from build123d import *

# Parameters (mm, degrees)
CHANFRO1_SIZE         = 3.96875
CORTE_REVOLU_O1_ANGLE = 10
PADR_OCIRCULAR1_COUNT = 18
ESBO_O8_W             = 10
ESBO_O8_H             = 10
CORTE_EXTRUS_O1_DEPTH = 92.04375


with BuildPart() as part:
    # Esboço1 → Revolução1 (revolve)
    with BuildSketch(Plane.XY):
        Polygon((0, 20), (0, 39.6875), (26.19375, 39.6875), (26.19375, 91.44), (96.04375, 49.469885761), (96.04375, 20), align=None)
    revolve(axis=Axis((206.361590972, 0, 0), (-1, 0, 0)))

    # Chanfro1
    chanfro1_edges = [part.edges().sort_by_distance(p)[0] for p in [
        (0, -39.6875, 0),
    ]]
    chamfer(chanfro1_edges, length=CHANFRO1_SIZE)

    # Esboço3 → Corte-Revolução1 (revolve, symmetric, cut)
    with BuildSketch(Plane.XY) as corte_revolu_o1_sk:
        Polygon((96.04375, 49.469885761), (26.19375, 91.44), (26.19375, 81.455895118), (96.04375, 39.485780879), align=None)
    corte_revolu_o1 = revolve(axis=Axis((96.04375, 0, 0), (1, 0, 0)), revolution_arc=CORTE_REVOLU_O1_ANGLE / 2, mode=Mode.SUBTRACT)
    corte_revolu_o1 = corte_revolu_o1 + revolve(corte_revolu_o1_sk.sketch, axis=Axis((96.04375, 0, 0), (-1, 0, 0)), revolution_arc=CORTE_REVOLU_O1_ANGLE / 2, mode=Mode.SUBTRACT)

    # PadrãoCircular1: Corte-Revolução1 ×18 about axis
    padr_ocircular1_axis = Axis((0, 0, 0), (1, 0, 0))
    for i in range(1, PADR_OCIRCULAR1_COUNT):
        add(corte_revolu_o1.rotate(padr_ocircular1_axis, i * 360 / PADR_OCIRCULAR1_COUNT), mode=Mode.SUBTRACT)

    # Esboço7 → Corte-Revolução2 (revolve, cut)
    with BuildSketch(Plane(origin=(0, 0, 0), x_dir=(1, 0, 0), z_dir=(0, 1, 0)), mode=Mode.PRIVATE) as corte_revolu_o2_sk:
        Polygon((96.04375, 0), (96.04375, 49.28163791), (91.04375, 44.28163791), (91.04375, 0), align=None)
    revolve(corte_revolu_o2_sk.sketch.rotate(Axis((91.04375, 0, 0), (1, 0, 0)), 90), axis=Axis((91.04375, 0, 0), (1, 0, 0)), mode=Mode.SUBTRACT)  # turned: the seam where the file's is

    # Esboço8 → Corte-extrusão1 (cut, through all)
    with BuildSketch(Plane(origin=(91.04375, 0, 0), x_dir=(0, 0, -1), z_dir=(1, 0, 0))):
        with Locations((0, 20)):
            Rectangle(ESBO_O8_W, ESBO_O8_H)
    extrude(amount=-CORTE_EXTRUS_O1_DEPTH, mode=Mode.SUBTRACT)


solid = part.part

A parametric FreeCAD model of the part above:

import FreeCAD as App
import Part
import Sketcher
Q = App.Units.Quantity


def edges_at(feature, points):
    """Names of the edges that pass closest to the given points."""
    edges = feature.Shape.Edges
    near = lambda p: min(range(len(edges)), key=lambda i: edges[i].distToShape(Part.Vertex(*p))[0])
    return sorted({f"Edge{near(p) + 1}" for p in points})

doc = App.newDocument("Part")
body = doc.addObject("PartDesign::Body", "Body")

sketch1 = doc.addObject("Sketcher::SketchObject", "Sketch")
body.addObject(sketch1)
sketch1.AttachmentSupport = (doc.XY_Plane, [""])
sketch1.MapMode = "FlatFace"
sketch1.addGeometry(Part.LineSegment(App.Vector(0, 40, 0), App.Vector(0, 20, 0)), False)
sketch1.addGeometry(Part.LineSegment(App.Vector(0, 20, 0), App.Vector(96, 20, 0)), False)
sketch1.addGeometry(Part.LineSegment(App.Vector(96, 20, 0), App.Vector(96, 49, 0)), False)
sketch1.addGeometry(Part.LineSegment(App.Vector(96, 49, 0), App.Vector(26, 91, 0)), False)
sketch1.addGeometry(Part.LineSegment(App.Vector(26, 91, 0), App.Vector(26, 40, 0)), False)
sketch1.addGeometry(Part.LineSegment(App.Vector(26, 40, 0), App.Vector(0, 40, 0)), False)
sketch1.addConstraint(Sketcher.Constraint("Coincident", 0, 2, 1, 1))
sketch1.addConstraint(Sketcher.Constraint("Coincident", 1, 2, 2, 1))
sketch1.addConstraint(Sketcher.Constraint("Coincident", 2, 2, 3, 1))
sketch1.addConstraint(Sketcher.Constraint("Coincident", 3, 2, 4, 1))
sketch1.addConstraint(Sketcher.Constraint("Coincident", 4, 2, 5, 1))
sketch1.addConstraint(Sketcher.Constraint("Coincident", 5, 2, 0, 1))
sketch1.addConstraint(Sketcher.Constraint("Vertical", 0))
sketch1.addConstraint(Sketcher.Constraint("Horizontal", 1))
sketch1.addConstraint(Sketcher.Constraint("Vertical", 2))
sketch1.addConstraint(Sketcher.Constraint("Vertical", 4))
sketch1.addConstraint(Sketcher.Constraint("Horizontal", 5))
sketch1.addConstraint(Sketcher.Constraint("PointOnObject", 0, 2, -2))
sketch1.addConstraint(Sketcher.Constraint("Angle", 3, Q("149 deg")))
sketch1.addConstraint(Sketcher.Constraint("DistanceY", -1, 1, 3, 2, Q("3.6 in")))
sketch1.addConstraint(Sketcher.Constraint("DistanceX", 1, 1, 1, 2, Q("3.78125 in")))
sketch1.addConstraint(Sketcher.Constraint("DistanceX", 5, 2, 5, 1, Q("1.03125 in")))
sketch1.addConstraint(Sketcher.Constraint("DistanceY", 4, 2, 4, 1, Q("2.0375 in")))
sketch1.addConstraint(Sketcher.Constraint("DistanceY", 0, 2, 0, 1, 19.6875))
revolution = doc.addObject("PartDesign::Revolution", "Revolution")
body.addObject(revolution)
revolution.Profile = sketch1
revolution.ReferenceAxis = (sketch1, ["H_Axis"])
revolution.Angle = 360
doc.recompute()

chamfer = doc.addObject("PartDesign::Chamfer", "Chamfer")
body.addObject(chamfer)
chamfer.Base = (revolution, edges_at(revolution, [(0, -39.688, 0)]))
chamfer.Size = Q("0.15625 in")

sketch2 = doc.addObject("Sketcher::SketchObject", "Sketch001")
body.addObject(sketch2)
sketch2.AttachmentSupport = (doc.XY_Plane, [""])
sketch2.MapMode = "FlatFace"
sketch2.addGeometry(Part.LineSegment(App.Vector(96, 49, 0), App.Vector(26, 91, 0)), False)
sketch2.addGeometry(Part.LineSegment(App.Vector(26, 91, 0), App.Vector(26, 81, 0)), False)
sketch2.addGeometry(Part.LineSegment(App.Vector(26, 81, 0), App.Vector(96, 39, 0)), False)
sketch2.addGeometry(Part.LineSegment(App.Vector(96, 39, 0), App.Vector(96, 49, 0)), False)
sketch2.addConstraint(Sketcher.Constraint("Coincident", 0, 2, 1, 1))
sketch2.addConstraint(Sketcher.Constraint("Coincident", 1, 2, 2, 1))
sketch2.addConstraint(Sketcher.Constraint("Coincident", 2, 2, 3, 1))
sketch2.addConstraint(Sketcher.Constraint("Coincident", 3, 2, 0, 1))
sketch2.addConstraint(Sketcher.Constraint("Vertical", 1))
sketch2.addConstraint(Sketcher.Constraint("Vertical", 3))
sketch2.addConstraint(Sketcher.Constraint("Parallel", 0, 2))
sketch2.addConstraint(Sketcher.Constraint("Angle", 0, Q("149 deg")))
sketch2.addConstraint(Sketcher.Constraint("DistanceY", -1, 1, 0, 2, Q("3.6 in")))
sketch2.addConstraint(Sketcher.Constraint("DistanceX", 1, 2, 2, 2, Q("2.75 in")))
sketch2.addConstraint(Sketcher.Constraint("DistanceX", -1, 1, 0, 2, Q("1.03125 in")))
sketch2.addConstraint(Sketcher.Constraint("DistanceY", 1, 2, 1, 1, 9.984105))
groove = doc.addObject("PartDesign::Groove", "Groove")
body.addObject(groove)
groove.Profile = sketch2
groove.ReferenceAxis = (sketch2, ["H_Axis"])
groove.Angle = 5

sketch3 = doc.addObject("Sketcher::SketchObject", "Sketch002")
body.addObject(sketch3)
sketch3.AttachmentSupport = (doc.XY_Plane, [""])
sketch3.MapMode = "FlatFace"
sketch3.addGeometry(Part.LineSegment(App.Vector(96, 49, 0), App.Vector(26, 91, 0)), False)
sketch3.addGeometry(Part.LineSegment(App.Vector(26, 91, 0), App.Vector(26, 81, 0)), False)
sketch3.addGeometry(Part.LineSegment(App.Vector(26, 81, 0), App.Vector(96, 39, 0)), False)
sketch3.addGeometry(Part.LineSegment(App.Vector(96, 39, 0), App.Vector(96, 49, 0)), False)
sketch3.addConstraint(Sketcher.Constraint("Coincident", 0, 2, 1, 1))
sketch3.addConstraint(Sketcher.Constraint("Coincident", 1, 2, 2, 1))
sketch3.addConstraint(Sketcher.Constraint("Coincident", 2, 2, 3, 1))
sketch3.addConstraint(Sketcher.Constraint("Coincident", 3, 2, 0, 1))
sketch3.addConstraint(Sketcher.Constraint("Vertical", 1))
sketch3.addConstraint(Sketcher.Constraint("Vertical", 3))
sketch3.addConstraint(Sketcher.Constraint("Parallel", 0, 2))
sketch3.addConstraint(Sketcher.Constraint("Angle", 0, Q("149 deg")))
sketch3.addConstraint(Sketcher.Constraint("DistanceY", -1, 1, 0, 2, Q("3.6 in")))
sketch3.addConstraint(Sketcher.Constraint("DistanceX", 1, 2, 2, 2, Q("2.75 in")))
sketch3.addConstraint(Sketcher.Constraint("DistanceX", -1, 1, 0, 2, Q("1.03125 in")))
sketch3.addConstraint(Sketcher.Constraint("DistanceY", 1, 2, 1, 1, 9.984105))
groove2 = doc.addObject("PartDesign::Groove", "Groove001")
body.addObject(groove2)
groove2.Profile = sketch3
groove2.ReferenceAxis = (sketch3, ["H_Axis"])
groove2.Angle = 5
groove2.Reversed = True
doc.recompute()

polarpattern = doc.addObject("PartDesign::PolarPattern", "PolarPattern")
body.addObject(polarpattern)
polarpattern.Originals = [groove, groove2]
polarpattern.Axis = (doc.X_Axis, [""])
polarpattern.Angle = 360
polarpattern.Occurrences = 18
body.Tip = polarpattern

sketch4 = doc.addObject("Sketcher::SketchObject", "Sketch003")
body.addObject(sketch4)
sketch4.AttachmentSupport = (doc.XZ_Plane, [""])
sketch4.MapMode = "FlatFace"
sketch4.addGeometry(Part.LineSegment(App.Vector(96, 0, 0), App.Vector(96, -49, 0)), False)
sketch4.addGeometry(Part.LineSegment(App.Vector(96, -49, 0), App.Vector(91, -44, 0)), False)
sketch4.addGeometry(Part.LineSegment(App.Vector(91, -44, 0), App.Vector(91, 0, 0)), False)
sketch4.addGeometry(Part.LineSegment(App.Vector(91, 0, 0), App.Vector(96, 0, 0)), False)
sketch4.addConstraint(Sketcher.Constraint("Coincident", 0, 2, 1, 1))
sketch4.addConstraint(Sketcher.Constraint("Coincident", 1, 2, 2, 1))
sketch4.addConstraint(Sketcher.Constraint("Coincident", 2, 2, 3, 1))
sketch4.addConstraint(Sketcher.Constraint("Coincident", 3, 2, 0, 1))
sketch4.addConstraint(Sketcher.Constraint("Vertical", 0))
sketch4.addConstraint(Sketcher.Constraint("Vertical", 2))
sketch4.addConstraint(Sketcher.Constraint("Horizontal", 3))
sketch4.addConstraint(Sketcher.Constraint("PointOnObject", 2, 2, -1))
sketch4.addConstraint(Sketcher.Constraint("Angle", 1, Q("135 deg")))
sketch4.addConstraint(Sketcher.Constraint("DistanceX", -1, 1, 0, 2, Q("3.78125 in")))
sketch4.addConstraint(Sketcher.Constraint("DistanceX", 3, 1, 3, 2, 5.0))
sketch4.addConstraint(Sketcher.Constraint("DistanceY", 0, 2, 0, 1, 49.281638))
groove3 = doc.addObject("PartDesign::Groove", "Groove002")
body.addObject(groove3)
groove3.Profile = sketch4
groove3.ReferenceAxis = (sketch4, ["H_Axis"])
groove3.Angle = 360

sketch5 = doc.addObject("Sketcher::SketchObject", "Sketch004")
body.addObject(sketch5)
sketch5.AttachmentSupport = (doc.YZ_Plane, [""])
sketch5.MapMode = "FlatFace"
sketch5.AttachmentOffset = App.Placement(App.Vector(0, 0, 91.04375), App.Rotation())
sketch5.addGeometry(Part.LineSegment(App.Vector(25, 5, 0), App.Vector(15, 5, 0)), False)
sketch5.addGeometry(Part.LineSegment(App.Vector(15, 5, 0), App.Vector(15, -5, 0)), False)
sketch5.addGeometry(Part.LineSegment(App.Vector(15, -5, 0), App.Vector(25, -5, 0)), False)
sketch5.addGeometry(Part.LineSegment(App.Vector(25, -5, 0), App.Vector(25, 5, 0)), False)
sketch5.addConstraint(Sketcher.Constraint("Coincident", 0, 2, 1, 1))
sketch5.addConstraint(Sketcher.Constraint("Coincident", 1, 2, 2, 1))
sketch5.addConstraint(Sketcher.Constraint("Coincident", 2, 2, 3, 1))
sketch5.addConstraint(Sketcher.Constraint("Coincident", 3, 2, 0, 1))
sketch5.addConstraint(Sketcher.Constraint("Horizontal", 0))
sketch5.addConstraint(Sketcher.Constraint("Vertical", 1))
sketch5.addConstraint(Sketcher.Constraint("Horizontal", 2))
sketch5.addConstraint(Sketcher.Constraint("Vertical", 3))
sketch5.addConstraint(Sketcher.Constraint("Equal", 2, 1))
sketch5.addConstraint(Sketcher.Constraint("DistanceX", 0, 2, 0, 1, 10.0))
sketch5.addConstraint(Sketcher.Constraint("DistanceX", -1, 1, 0, 2, 15.0))
sketch5.addConstraint(Sketcher.Constraint("DistanceY", -1, 1, 0, 2, 5.0))
pocket1 = doc.addObject("PartDesign::Pocket", "Pocket")
body.addObject(pocket1)
pocket1.Profile = sketch5
pocket1.Type = "ThroughAll"

doc.recompute()
